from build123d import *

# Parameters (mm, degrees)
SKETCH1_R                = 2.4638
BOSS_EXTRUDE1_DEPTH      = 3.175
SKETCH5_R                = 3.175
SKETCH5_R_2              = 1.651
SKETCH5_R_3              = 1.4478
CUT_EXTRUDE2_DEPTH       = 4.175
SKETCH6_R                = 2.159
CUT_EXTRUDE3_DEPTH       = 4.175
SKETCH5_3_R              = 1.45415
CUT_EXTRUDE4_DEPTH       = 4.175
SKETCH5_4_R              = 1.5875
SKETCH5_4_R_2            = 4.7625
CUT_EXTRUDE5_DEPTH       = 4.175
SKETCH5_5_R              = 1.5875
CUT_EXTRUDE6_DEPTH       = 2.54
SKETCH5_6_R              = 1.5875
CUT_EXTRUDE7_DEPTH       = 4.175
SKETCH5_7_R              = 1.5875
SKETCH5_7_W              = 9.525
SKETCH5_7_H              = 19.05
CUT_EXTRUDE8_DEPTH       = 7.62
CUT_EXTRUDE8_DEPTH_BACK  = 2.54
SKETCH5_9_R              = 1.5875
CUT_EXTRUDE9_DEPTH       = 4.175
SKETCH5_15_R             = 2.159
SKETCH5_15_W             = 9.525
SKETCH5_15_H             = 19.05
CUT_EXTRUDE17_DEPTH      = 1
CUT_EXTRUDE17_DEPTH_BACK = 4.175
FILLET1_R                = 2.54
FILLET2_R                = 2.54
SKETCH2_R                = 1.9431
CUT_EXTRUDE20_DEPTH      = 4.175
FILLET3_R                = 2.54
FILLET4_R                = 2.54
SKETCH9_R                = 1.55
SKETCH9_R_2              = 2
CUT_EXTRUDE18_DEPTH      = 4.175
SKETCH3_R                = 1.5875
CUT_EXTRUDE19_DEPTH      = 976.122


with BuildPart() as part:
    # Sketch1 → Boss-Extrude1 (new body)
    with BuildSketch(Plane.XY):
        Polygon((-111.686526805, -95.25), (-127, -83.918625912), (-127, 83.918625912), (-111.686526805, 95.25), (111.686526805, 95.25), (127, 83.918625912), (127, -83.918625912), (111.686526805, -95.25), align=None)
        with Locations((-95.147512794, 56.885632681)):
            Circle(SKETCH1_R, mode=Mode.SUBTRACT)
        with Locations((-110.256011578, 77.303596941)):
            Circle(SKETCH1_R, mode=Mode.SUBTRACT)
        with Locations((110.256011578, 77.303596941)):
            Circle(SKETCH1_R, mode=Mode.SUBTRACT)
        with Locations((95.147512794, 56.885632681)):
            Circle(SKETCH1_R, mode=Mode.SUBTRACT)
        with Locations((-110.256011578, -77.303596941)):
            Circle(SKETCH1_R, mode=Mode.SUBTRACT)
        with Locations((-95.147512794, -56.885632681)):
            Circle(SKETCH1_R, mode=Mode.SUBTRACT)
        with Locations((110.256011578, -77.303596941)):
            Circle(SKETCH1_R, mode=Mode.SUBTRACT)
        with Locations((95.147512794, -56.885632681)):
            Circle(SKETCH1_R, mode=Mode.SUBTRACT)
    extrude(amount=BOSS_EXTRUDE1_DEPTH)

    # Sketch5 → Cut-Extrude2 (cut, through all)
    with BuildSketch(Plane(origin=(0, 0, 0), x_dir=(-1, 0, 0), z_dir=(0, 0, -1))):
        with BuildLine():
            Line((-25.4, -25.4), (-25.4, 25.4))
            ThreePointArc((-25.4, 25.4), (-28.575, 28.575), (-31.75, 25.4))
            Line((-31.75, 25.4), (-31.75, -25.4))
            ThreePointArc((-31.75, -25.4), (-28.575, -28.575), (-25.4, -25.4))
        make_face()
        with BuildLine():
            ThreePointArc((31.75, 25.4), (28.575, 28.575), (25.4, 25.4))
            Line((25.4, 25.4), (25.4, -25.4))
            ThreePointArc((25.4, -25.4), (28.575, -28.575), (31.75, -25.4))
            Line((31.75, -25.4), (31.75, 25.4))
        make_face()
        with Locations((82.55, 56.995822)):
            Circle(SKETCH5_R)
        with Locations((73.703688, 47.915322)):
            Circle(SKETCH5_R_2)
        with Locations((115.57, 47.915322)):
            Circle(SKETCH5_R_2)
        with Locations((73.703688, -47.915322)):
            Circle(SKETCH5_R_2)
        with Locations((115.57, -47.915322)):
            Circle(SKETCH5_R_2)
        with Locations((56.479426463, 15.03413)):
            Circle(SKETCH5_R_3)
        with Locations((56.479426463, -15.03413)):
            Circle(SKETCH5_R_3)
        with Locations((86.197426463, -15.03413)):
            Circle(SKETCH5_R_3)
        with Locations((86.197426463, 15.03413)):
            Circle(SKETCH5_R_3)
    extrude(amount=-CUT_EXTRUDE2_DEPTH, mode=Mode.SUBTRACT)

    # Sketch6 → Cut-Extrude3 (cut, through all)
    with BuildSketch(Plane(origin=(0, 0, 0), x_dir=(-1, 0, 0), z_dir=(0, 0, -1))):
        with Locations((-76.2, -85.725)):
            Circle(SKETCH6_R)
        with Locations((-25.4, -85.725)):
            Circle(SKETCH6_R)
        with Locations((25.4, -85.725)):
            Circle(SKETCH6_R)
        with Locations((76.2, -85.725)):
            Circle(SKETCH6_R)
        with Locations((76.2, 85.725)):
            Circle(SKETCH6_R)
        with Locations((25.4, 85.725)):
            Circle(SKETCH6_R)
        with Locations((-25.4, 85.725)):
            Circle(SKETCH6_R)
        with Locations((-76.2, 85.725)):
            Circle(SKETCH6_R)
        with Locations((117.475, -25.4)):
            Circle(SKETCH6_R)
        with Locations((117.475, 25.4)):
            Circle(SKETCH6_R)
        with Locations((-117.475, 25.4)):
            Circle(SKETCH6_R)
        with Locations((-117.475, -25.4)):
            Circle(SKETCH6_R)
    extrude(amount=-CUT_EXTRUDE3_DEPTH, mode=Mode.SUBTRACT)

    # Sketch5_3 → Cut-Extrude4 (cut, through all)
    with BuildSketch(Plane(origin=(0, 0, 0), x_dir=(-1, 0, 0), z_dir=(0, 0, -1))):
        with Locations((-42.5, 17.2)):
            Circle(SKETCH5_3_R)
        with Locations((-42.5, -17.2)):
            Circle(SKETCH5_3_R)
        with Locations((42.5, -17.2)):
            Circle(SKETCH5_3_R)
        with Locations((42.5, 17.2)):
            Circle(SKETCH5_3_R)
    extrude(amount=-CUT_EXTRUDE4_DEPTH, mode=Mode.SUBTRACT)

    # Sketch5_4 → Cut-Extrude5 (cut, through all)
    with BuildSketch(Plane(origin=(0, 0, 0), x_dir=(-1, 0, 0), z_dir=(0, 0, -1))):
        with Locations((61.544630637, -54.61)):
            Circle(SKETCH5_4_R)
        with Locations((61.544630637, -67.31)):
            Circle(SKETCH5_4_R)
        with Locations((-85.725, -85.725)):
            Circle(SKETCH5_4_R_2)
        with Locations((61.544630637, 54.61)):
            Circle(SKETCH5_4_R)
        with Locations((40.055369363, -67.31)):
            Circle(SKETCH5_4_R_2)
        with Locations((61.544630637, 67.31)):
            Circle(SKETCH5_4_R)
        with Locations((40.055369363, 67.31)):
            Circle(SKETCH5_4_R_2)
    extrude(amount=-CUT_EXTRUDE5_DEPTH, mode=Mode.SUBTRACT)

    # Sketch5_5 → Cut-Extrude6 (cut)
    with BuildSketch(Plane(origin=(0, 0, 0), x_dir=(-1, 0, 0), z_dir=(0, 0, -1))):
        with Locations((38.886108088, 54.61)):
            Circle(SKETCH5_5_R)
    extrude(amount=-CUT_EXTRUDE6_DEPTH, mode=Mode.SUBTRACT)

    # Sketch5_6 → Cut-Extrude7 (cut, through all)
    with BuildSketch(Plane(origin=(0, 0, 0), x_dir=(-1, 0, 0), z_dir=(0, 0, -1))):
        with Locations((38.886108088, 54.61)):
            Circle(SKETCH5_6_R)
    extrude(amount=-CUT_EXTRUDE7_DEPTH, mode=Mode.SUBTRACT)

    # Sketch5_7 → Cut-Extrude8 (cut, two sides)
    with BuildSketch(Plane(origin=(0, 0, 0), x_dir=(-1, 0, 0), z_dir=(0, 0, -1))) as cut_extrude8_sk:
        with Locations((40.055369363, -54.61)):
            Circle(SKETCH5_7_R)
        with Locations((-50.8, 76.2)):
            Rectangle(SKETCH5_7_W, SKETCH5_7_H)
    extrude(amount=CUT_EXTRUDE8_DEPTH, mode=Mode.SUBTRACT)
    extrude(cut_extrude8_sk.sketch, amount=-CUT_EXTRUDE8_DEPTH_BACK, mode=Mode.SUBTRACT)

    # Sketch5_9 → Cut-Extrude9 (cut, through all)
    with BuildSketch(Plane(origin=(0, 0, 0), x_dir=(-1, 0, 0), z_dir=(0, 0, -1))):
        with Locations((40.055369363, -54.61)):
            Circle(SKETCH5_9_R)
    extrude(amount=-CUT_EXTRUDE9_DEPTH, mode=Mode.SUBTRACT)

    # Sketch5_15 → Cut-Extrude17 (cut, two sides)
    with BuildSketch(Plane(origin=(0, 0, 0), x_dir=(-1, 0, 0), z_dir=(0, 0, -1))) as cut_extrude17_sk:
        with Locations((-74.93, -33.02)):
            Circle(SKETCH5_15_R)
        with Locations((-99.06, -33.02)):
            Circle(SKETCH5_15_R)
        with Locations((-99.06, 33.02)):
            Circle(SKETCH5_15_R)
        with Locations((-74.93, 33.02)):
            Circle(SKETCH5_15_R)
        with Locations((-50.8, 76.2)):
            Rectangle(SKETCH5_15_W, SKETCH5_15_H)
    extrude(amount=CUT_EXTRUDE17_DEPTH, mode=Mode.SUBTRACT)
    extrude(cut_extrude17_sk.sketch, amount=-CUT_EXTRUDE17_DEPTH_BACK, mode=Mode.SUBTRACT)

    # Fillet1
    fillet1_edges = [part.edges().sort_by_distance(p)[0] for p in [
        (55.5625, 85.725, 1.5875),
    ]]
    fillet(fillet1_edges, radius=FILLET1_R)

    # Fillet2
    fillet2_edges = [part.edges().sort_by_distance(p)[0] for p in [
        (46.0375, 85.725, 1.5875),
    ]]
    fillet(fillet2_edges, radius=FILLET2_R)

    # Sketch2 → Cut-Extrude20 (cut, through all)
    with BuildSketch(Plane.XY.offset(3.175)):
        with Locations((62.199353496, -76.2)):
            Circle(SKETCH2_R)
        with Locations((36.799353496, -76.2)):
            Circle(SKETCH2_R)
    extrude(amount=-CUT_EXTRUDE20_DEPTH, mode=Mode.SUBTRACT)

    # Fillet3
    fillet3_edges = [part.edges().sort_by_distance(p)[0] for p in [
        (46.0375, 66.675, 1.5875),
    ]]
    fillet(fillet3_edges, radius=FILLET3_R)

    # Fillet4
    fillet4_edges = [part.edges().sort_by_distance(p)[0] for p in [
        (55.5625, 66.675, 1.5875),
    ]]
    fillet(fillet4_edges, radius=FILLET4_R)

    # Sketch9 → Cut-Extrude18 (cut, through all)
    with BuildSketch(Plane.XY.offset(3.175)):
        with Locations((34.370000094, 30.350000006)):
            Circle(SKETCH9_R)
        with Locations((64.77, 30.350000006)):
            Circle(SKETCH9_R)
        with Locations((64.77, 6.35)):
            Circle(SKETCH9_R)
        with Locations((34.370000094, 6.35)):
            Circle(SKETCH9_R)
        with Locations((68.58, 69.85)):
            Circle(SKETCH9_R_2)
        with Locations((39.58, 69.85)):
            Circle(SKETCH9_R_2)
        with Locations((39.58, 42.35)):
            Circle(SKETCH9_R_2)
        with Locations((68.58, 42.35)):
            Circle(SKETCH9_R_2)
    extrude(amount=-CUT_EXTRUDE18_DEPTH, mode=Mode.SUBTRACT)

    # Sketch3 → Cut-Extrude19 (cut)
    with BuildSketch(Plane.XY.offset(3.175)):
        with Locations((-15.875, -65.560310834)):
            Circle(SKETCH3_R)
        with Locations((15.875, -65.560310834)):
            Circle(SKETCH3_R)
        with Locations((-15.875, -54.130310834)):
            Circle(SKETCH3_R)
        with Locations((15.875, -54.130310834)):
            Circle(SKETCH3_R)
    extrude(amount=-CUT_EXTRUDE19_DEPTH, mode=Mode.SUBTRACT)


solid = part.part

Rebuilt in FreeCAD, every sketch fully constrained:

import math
import FreeCAD as App
import Part
import Sketcher

V = App.Vector
Q = App.Units.Quantity


def edges_at(feature, points):
    """Names of the edges that pass closest to the given points."""
    edges = feature.Shape.Edges
    near = lambda p: min(range(len(edges)), key=lambda i: edges[i].distToShape(Part.Vertex(*p))[0])
    return sorted({f"Edge{near(p) + 1}" for p in points})

doc = App.newDocument("Part")
params = doc.addObject("Spreadsheet::Sheet", "Params")
for row, (alias, value) in enumerate([
    ("sketch1_diameter", "0.194 in"),
    ("sketch1_length", "0.75 in"),
    ("pad1_length", "0.125 in"),
    ("sketch2_diameter", "0.25 in"),
    ("sketch2_diameter2", "0.13 in"),
    ("sketch2_height", "2 in"),
    ("sketch2_diameter3", "0.114 in"),
    ("sketch3_diameter", "0.17 in"),
    ("sketch5_diameter", "0.125 in"),
    ("sketch5_diameter2", "0.375 in"),
    ("sketch6_diameter", "0.125 in"),
    ("pocket5_length", "0.1 in"),
    ("sketch7_diameter", "0.125 in"),
    ("sketch8_diameter", "0.125 in"),
    ("sketch8_height", "0.75 in"),
    ("sketch8_width", "0.375 in"),
    ("pocket7_length", "0.3 in"),
    ("pocket7_length2", "0.1 in"),
    ("sketch9_diameter", "0.125 in"),
    ("sketch10_diameter", "0.17 in"),
    ("sketch10_height", "0.75 in"),
    ("sketch10_width", "0.375 in"),
    ("fillet_radius", "0.1 in"),
    ("fillet2_radius", "0.1 in"),
    ("sketch11_diameter", "0.153 in"),
    ("fillet3_radius", "0.1 in"),
    ("fillet4_radius", "0.1 in"),
    ("sketch13_diameter", "0.125 in"),
    ("pocket12_length", "38.43 in"),
], start=1):
    params.set(f"A{row}", alias)
    params.set(f"B{row}", "=" + value)
    params.setAlias(f"B{row}", alias)

body = doc.addObject("PartDesign::Body", "Body")

sketch1 = body.newObject("Sketcher::SketchObject", "Sketch")
sketch1.AttachmentSupport = (doc.getObject("XY_Plane"), [""])
sketch1.MapMode = "FlatFace"
sketch1.addGeometry(Part.LineSegment(V(-127, -83.9, 0), V(-111.7, -95.2, 0)), False)
sketch1.addGeometry(Part.LineSegment(V(-111.7, -95.2, 0), V(111.7, -95.2, 0)), False)
sketch1.addGeometry(Part.LineSegment(V(111.7, -95.2, 0), V(127, -83.9, 0)), False)
sketch1.addGeometry(Part.LineSegment(V(127, -83.9, 0), V(127, 83.9, 0)), False)
sketch1.addGeometry(Part.LineSegment(V(127, 83.9, 0), V(111.7, 95.2, 0)), False)
sketch1.addGeometry(Part.LineSegment(V(111.7, 95.2, 0), V(-111.7, 95.2, 0)), False)
sketch1.addGeometry(Part.LineSegment(V(-111.7, 95.2, 0), V(-127, 83.9, 0)), False)
sketch1.addGeometry(Part.LineSegment(V(-127, 83.9, 0), V(-127, -83.9, 0)), False)
sketch1.addGeometry(Part.Circle(V(110.3, -77.3, 0), V(0, 0, 1), 2.5), False)
sketch1.addGeometry(Part.Circle(V(95.1, -56.9, 0), V(0, 0, 1), 2.5), False)
sketch1.addGeometry(Part.Circle(V(-110.3, -77.3, 0), V(0, 0, 1), 2.5), False)
sketch1.addGeometry(Part.Circle(V(-95.1, -56.9, 0), V(0, 0, 1), 2.5), False)
sketch1.addGeometry(Part.Circle(V(95.1, 56.9, 0), V(0, 0, 1), 2.5), False)
sketch1.addGeometry(Part.Circle(V(110.3, 77.3, 0), V(0, 0, 1), 2.5), False)
sketch1.addGeometry(Part.Circle(V(-95.1, 56.9, 0), V(0, 0, 1), 2.5), False)
sketch1.addGeometry(Part.Circle(V(-110.3, 77.3, 0), V(0, 0, 1), 2.5), False)
sketch1.addConstraint(Sketcher.Constraint("Coincident", 0, 2, 1, 1))
sketch1.addConstraint(Sketcher.Constraint("Coincident", 1, 2, 2, 1))
sketch1.addConstraint(Sketcher.Constraint("Coincident", 2, 2, 3, 1))
sketch1.addConstraint(Sketcher.Constraint("Coincident", 3, 2, 4, 1))
sketch1.addConstraint(Sketcher.Constraint("Coincident", 4, 2, 5, 1))
sketch1.addConstraint(Sketcher.Constraint("Coincident", 5, 2, 6, 1))
sketch1.addConstraint(Sketcher.Constraint("Coincident", 6, 2, 7, 1))
sketch1.addConstraint(Sketcher.Constraint("Coincident", 7, 2, 0, 1))
sketch1.addConstraint(Sketcher.Constraint("Horizontal", 1))
sketch1.addConstraint(Sketcher.Constraint("Vertical", 3))
sketch1.addConstraint(Sketcher.Constraint("Horizontal", 5))
sketch1.addConstraint(Sketcher.Constraint("Vertical", 7))
sketch1.addConstraint(Sketcher.Constraint("Equal", 8, 9))
sketch1.addConstraint(Sketcher.Constraint("Equal", 9, 10))
sketch1.addConstraint(Sketcher.Constraint("Equal", 10, 11))
sketch1.addConstraint(Sketcher.Constraint("Equal", 11, 12))
sketch1.addConstraint(Sketcher.Constraint("Equal", 12, 13))
sketch1.addConstraint(Sketcher.Constraint("Equal", 13, 14))
sketch1.addConstraint(Sketcher.Constraint("Equal", 14, 15))
sketch1.addConstraint(Sketcher.Constraint("Symmetric", 11, 3, 12, 3, -1, 1))
sketch1.addConstraint(Sketcher.Constraint("Symmetric", 10, 3, 13, 3, -1, 1))
sketch1.addConstraint(Sketcher.Constraint("Symmetric", 9, 3, 14, 3, -1, 1))
sketch1.addConstraint(Sketcher.Constraint("Symmetric", 8, 3, 15, 3, -1, 1))
sketch1.addConstraint(Sketcher.Constraint("Symmetric", 0, 2, 4, 2, -1, 1))
sketch1.addConstraint(Sketcher.Constraint("Symmetric", 2, 2, 6, 2, -1, 1))
sketch1.addConstraint(Sketcher.Constraint("Symmetric", 8, 3, 10, 3, -2))
sketch1.addConstraint(Sketcher.Constraint("Symmetric", 9, 3, 11, 3, -2))
sketch1.addConstraint(Sketcher.Constraint("Parallel", 0, 4))
sketch1.addConstraint(Sketcher.Constraint("Parallel", 2, 6))
sketch1.addConstraint(Sketcher.Constraint("Horizontal", 3, 2, 6, 2))
sketch1.addConstraint(Sketcher.Constraint("Vertical", 1, 2, 4, 2))
sketch1.addConstraint(Sketcher.Constraint("Diameter", 8, Q("0.194 in")))
sketch1.addConstraint(Sketcher.Constraint("DistanceX", -1, 1, 2, 2, Q("5 in")))
sketch1.addConstraint(Sketcher.Constraint("Angle", 0, Q("-36.5 deg")))
sketch1.addConstraint(Sketcher.Constraint("DistanceY", 0, 2, 5, 2, Q("7.5 in")))
sketch1.addConstraint(Sketcher.Constraint("Distance", 0, Q("0.75 in")))
sketch1.addConstraint(Sketcher.Constraint("DistanceX", 9, 3, 8, 3, 15.108499))
sketch1.addConstraint(Sketcher.Constraint("DistanceX", -1, 1, 8, 3, 110.256012))
sketch1.addConstraint(Sketcher.Constraint("DistanceY", 8, 3, 12, 3, 134.18923))
sketch1.addConstraint(Sketcher.Constraint("DistanceY", 2, 2, 8, 3, 6.615029))
sketch1.setExpression("Constraints[31]", "Params.sketch1_diameter")
sketch1.setExpression("Constraints[35]", "Params.sketch1_length")
pad1 = body.newObject("PartDesign::Pad", "Pad")
pad1.Profile = sketch1
pad1.setExpression("Length", "Params.pad1_length")

sketch2 = body.newObject("Sketcher::SketchObject", "Sketch001")
sketch2.AttachmentSupport = (doc.getObject("XY_Plane"), [""])
sketch2.MapMode = "FlatFace"
sketch2.addGeometry(Part.LineSegment(V(25.4, -25.4, 0), V(25.4, 25.4, 0)), False)
sketch2.addGeometry(Part.ArcOfCircle(Part.Circle(V(28.6, 25.4, 0), V(0, 0, 1), 3.2), math.radians(0), math.radians(180)), False)
sketch2.addGeometry(Part.LineSegment(V(31.8, 25.4, 0), V(31.8, -25.4, 0)), False)
sketch2.addGeometry(Part.ArcOfCircle(Part.Circle(V(28.6, -25.4, 0), V(0, 0, 1), 3.2), math.radians(180), math.radians(360)), False)
sketch2.addGeometry(Part.ArcOfCircle(Part.Circle(V(-28.6, 25.4, 0), V(0, 0, 1), 3.2), math.radians(0), math.radians(180)), False)
sketch2.addGeometry(Part.LineSegment(V(-25.4, 25.4, 0), V(-25.4, -25.4, 0)), False)
sketch2.addGeometry(Part.ArcOfCircle(Part.Circle(V(-28.6, -25.4, 0), V(0, 0, 1), 3.2), math.radians(180), math.radians(360)), False)
sketch2.addGeometry(Part.LineSegment(V(-31.8, -25.4, 0), V(-31.8, 25.4, 0)), False)
sketch2.addGeometry(Part.Circle(V(-82.5, 57, 0), V(0, 0, 1), 3.2), False)
sketch2.addGeometry(Part.Circle(V(-73.7, 47.9, 0), V(0, 0, 1), 1.7), False)
sketch2.addGeometry(Part.Circle(V(-115.6, 47.9, 0), V(0, 0, 1), 1.7), False)
sketch2.addGeometry(Part.Circle(V(-73.7, -47.9, 0), V(0, 0, 1), 1.7), False)
sketch2.addGeometry(Part.Circle(V(-115.6, -47.9, 0), V(0, 0, 1), 1.7), False)
sketch2.addGeometry(Part.Circle(V(-56.5, 15, 0), V(0, 0, 1), 1.4), False)
sketch2.addGeometry(Part.Circle(V(-56.5, -15, 0), V(0, 0, 1), 1.4), False)
sketch2.addGeometry(Part.Circle(V(-86.2, -15, 0), V(0, 0, 1), 1.4), False)
sketch2.addGeometry(Part.Circle(V(-86.2, 15, 0), V(0, 0, 1), 1.4), False)
sketch2.addConstraint(Sketcher.Constraint("Tangent", 0, 2, 1, 2))
sketch2.addConstraint(Sketcher.Constraint("Tangent", 1, 1, 2, 1))
sketch2.addConstraint(Sketcher.Constraint("Tangent", 2, 2, 3, 2))
sketch2.addConstraint(Sketcher.Constraint("Tangent", 3, 1, 0, 1))
sketch2.addConstraint(Sketcher.Constraint("Tangent", 4, 1, 5, 1))
sketch2.addConstraint(Sketcher.Constraint("Tangent", 5, 2, 6, 2))
sketch2.addConstraint(Sketcher.Constraint("Tangent", 6, 1, 7, 1))
sketch2.addConstraint(Sketcher.Constraint("Tangent", 7, 2, 4, 2))
sketch2.addConstraint(Sketcher.Constraint("Vertical", 0))
sketch2.addConstraint(Sketcher.Constraint("Vertical", 2))
sketch2.addConstraint(Sketcher.Constraint("Vertical", 5))
sketch2.addConstraint(Sketcher.Constraint("Vertical", 7))
sketch2.addConstraint(Sketcher.Constraint("Equal", 3, 4))
sketch2.addConstraint(Sketcher.Constraint("Equal", 6, 8))
sketch2.addConstraint(Sketcher.Constraint("Equal", 9, 10))
sketch2.addConstraint(Sketcher.Constraint("Equal", 10, 11))
sketch2.addConstraint(Sketcher.Constraint("Equal", 11, 12))
sketch2.addConstraint(Sketcher.Constraint("Equal", 13, 14))
sketch2.addConstraint(Sketcher.Constraint("Equal", 14, 15))
sketch2.addConstraint(Sketcher.Constraint("Equal", 15, 16))
sketch2.addConstraint(Sketcher.Constraint("Symmetric", 3, 3, 4, 3, -1, 1))
sketch2.addConstraint(Sketcher.Constraint("Symmetric", 9, 3, 11, 3, -1))
sketch2.addConstraint(Sketcher.Constraint("Symmetric", 10, 3, 12, 3, -1))
sketch2.addConstraint(Sketcher.Constraint("Symmetric", 13, 3, 14, 3, -1))
sketch2.addConstraint(Sketcher.Constraint("Symmetric", 15, 3, 16, 3, -1))
sketch2.addConstraint(Sketcher.Constraint("Horizontal", 1, 3, 4, 3))
sketch2.addConstraint(Sketcher.Constraint("Horizontal", 3, 3, 6, 3))
sketch2.addConstraint(Sketcher.Constraint("Horizontal", 9, 3, 10, 3))
sketch2.addConstraint(Sketcher.Constraint("Horizontal", 14, 3, 15, 3))
sketch2.addConstraint(Sketcher.Constraint("Diameter", 8, Q("0.25 in")))
sketch2.addConstraint(Sketcher.Constraint("Diameter", 9, Q("0.13 in")))
sketch2.addConstraint(Sketcher.Constraint("DistanceY", 0, 1, 0, 2, Q("2 in")))
sketch2.addConstraint(Sketcher.Constraint("Diameter", 13, Q("0.114 in")))
sketch2.addConstraint(Sketcher.Constraint("DistanceX", -1, 1, 0, 2, Q("1 in")))
sketch2.addConstraint(Sketcher.Constraint("DistanceX", 10, 3, 8, 3, Q("1.3 in")))
sketch2.addConstraint(Sketcher.Constraint("DistanceX", 8, 3, -1, 1, Q("3.25 in")))
sketch2.addConstraint(Sketcher.Constraint("DistanceX", 15, 3, 14, 3, Q("1.17 in")))
sketch2.addConstraint(Sketcher.Constraint("DistanceY", 9, 3, 8, 3, Q("0.3575 in")))
sketch2.addConstraint(Sketcher.Constraint("DistanceY", -1, 1, 8, 3, 56.995822))
sketch2.addConstraint(Sketcher.Constraint("DistanceX", 9, 3, -1, 1, 73.703688))
sketch2.addConstraint(Sketcher.Constraint("DistanceY", -1, 1, 13, 3, 15.03413))
sketch2.addConstraint(Sketcher.Constraint("DistanceX", 9, 3, 13, 3, 17.224262))
sketch2.setExpression("Constraints[29]", "Params.sketch2_diameter")
sketch2.setExpression("Constraints[30]", "Params.sketch2_diameter2")
sketch2.setExpression("Constraints[31]", "Params.sketch2_height")
sketch2.setExpression("Constraints[32]", "Params.sketch2_diameter3")
pocket1 = body.newObject("PartDesign::Pocket", "Pocket")
pocket1.Profile = sketch2
pocket1.Type = "ThroughAll"
pocket1.Reversed = True

sketch3 = body.newObject("Sketcher::SketchObject", "Sketch002")
sketch3.AttachmentSupport = (doc.getObject("XY_Plane"), [""])
sketch3.MapMode = "FlatFace"
sketch3.addGeometry(Part.Circle(V(76.2, -85.7, 0), V(0, 0, 1), 2.2), False)
sketch3.addGeometry(Part.Circle(V(25.4, -85.7, 0), V(0, 0, 1), 2.2), False)
sketch3.addGeometry(Part.Circle(V(-25.4, -85.7, 0), V(0, 0, 1), 2.2), False)
sketch3.addGeometry(Part.Circle(V(-76.2, -85.7, 0), V(0, 0, 1), 2.2), False)
sketch3.addGeometry(Part.Circle(V(-76.2, 85.7, 0), V(0, 0, 1), 2.2), False)
sketch3.addGeometry(Part.Circle(V(-25.4, 85.7, 0), V(0, 0, 1), 2.2), False)
sketch3.addGeometry(Part.Circle(V(25.4, 85.7, 0), V(0, 0, 1), 2.2), False)
sketch3.addGeometry(Part.Circle(V(76.2, 85.7, 0), V(0, 0, 1), 2.2), False)
sketch3.addGeometry(Part.Circle(V(-117.5, -25.4, 0), V(0, 0, 1), 2.2), False)
sketch3.addGeometry(Part.Circle(V(-117.5, 25.4, 0), V(0, 0, 1), 2.2), False)
sketch3.addGeometry(Part.Circle(V(117.5, 25.4, 0), V(0, 0, 1), 2.2), False)
sketch3.addGeometry(Part.Circle(V(117.5, -25.4, 0), V(0, 0, 1), 2.2), False)
sketch3.addConstraint(Sketcher.Constraint("Equal", 0, 1))
sketch3.addConstraint(Sketcher.Constraint("Equal", 1, 2))
sketch3.addConstraint(Sketcher.Constraint("Equal", 2, 3))
sketch3.addConstraint(Sketcher.Constraint("Equal", 3, 4))
sketch3.addConstraint(Sketcher.Constraint("Equal", 4, 5))
sketch3.addConstraint(Sketcher.Constraint("Equal", 5, 6))
sketch3.addConstraint(Sketcher.Constraint("Equal", 6, 7))
sketch3.addConstraint(Sketcher.Constraint("Equal", 7, 8))
sketch3.addConstraint(Sketcher.Constraint("Equal", 8, 9))
sketch3.addConstraint(Sketcher.Constraint("Equal", 9, 10))
sketch3.addConstraint(Sketcher.Constraint("Equal", 10, 11))
sketch3.addConstraint(Sketcher.Constraint("Symmetric", 0, 3, 4, 3, -1, 1))
sketch3.addConstraint(Sketcher.Constraint("Symmetric", 1, 3, 5, 3, -1, 1))
sketch3.addConstraint(Sketcher.Constraint("Symmetric", 2, 3, 6, 3, -1, 1))
sketch3.addConstraint(Sketcher.Constraint("Symmetric", 3, 3, 7, 3, -1, 1))
sketch3.addConstraint(Sketcher.Constraint("Symmetric", 8, 3, 10, 3, -1, 1))
sketch3.addConstraint(Sketcher.Constraint("Symmetric", 9, 3, 11, 3, -1, 1))
sketch3.addConstraint(Sketcher.Constraint("Symmetric", 1, 3, 2, 3, -2))
sketch3.addConstraint(Sketcher.Constraint("Symmetric", 0, 3, 3, 3, -2))
sketch3.addConstraint(Sketcher.Constraint("Symmetric", 9, 3, 10, 3, -2))
sketch3.addConstraint(Sketcher.Constraint("Horizontal", 0, 3, 1, 3))
sketch3.addConstraint(Sketcher.Constraint("Diameter", 0, Q("0.17 in")))
sketch3.addConstraint(Sketcher.Constraint("DistanceX", -1, 1, 0, 3, Q("3 in")))
sketch3.addConstraint(Sketcher.Constraint("DistanceX", -1, 1, 1, 3, Q("1 in")))
sketch3.addConstraint(Sketcher.Constraint("DistanceY", 8, 3, -1, 1, Q("1 in")))
sketch3.addConstraint(Sketcher.Constraint("DistanceY", 3, 3, 4, 3, Q("6.75 in")))
sketch3.addConstraint(Sketcher.Constraint("DistanceX", 8, 3, -1, 1, Q("4.625 in")))
sketch3.setExpression("Constraints[21]", "Params.sketch3_diameter")
pocket2 = body.newObject("PartDesign::Pocket", "Pocket001")
pocket2.Profile = sketch3
pocket2.Type = "ThroughAll"
pocket2.Reversed = True

sketch4 = body.newObject("Sketcher::SketchObject", "Sketch003")
sketch4.AttachmentSupport = (doc.getObject("XY_Plane"), [""])
sketch4.MapMode = "FlatFace"
sketch4.addGeometry(Part.Circle(V(42.5, 17.2, 0), V(0, 0, 1), 1.5), False)
sketch4.addGeometry(Part.Circle(V(42.5, -17.2, 0), V(0, 0, 1), 1.5), False)
sketch4.addGeometry(Part.Circle(V(-42.5, -17.2, 0), V(0, 0, 1), 1.5), False)
sketch4.addGeometry(Part.Circle(V(-42.5, 17.2, 0), V(0, 0, 1), 1.5), False)
sketch4.addConstraint(Sketcher.Constraint("Equal", 0, 1))
sketch4.addConstraint(Sketcher.Constraint("Equal", 1, 2))
sketch4.addConstraint(Sketcher.Constraint("Equal", 2, 3))
sketch4.addConstraint(Sketcher.Constraint("Symmetric", 0, 3, 2, 3, -1, 1))
sketch4.addConstraint(Sketcher.Constraint("Symmetric", 1, 3, 3, 3, -1, 1))
sketch4.addConstraint(Sketcher.Constraint("Symmetric", 1, 3, 2, 3, -2))
sketch4.addConstraint(Sketcher.Constraint("Diameter", 0, Q("0.1145 in")))
sketch4.addConstraint(Sketcher.Constraint("DistanceX", -1, 1, 0, 3, 42.5))
sketch4.addConstraint(Sketcher.Constraint("DistanceY", -1, 1, 0, 3, 17.2))
pocket3 = body.newObject("PartDesign::Pocket", "Pocket002")
pocket3.Profile = sketch4
pocket3.Type = "ThroughAll"
pocket3.Reversed = True

sketch5 = body.newObject("Sketcher::SketchObject", "Sketch004")
sketch5.AttachmentSupport = (doc.getObject("XY_Plane"), [""])
sketch5.MapMode = "FlatFace"
sketch5.addGeometry(Part.Circle(V(-61.5, -54.6, 0), V(0, 0, 1), 1.6), False)
sketch5.addGeometry(Part.Circle(V(-61.5, -67.3, 0), V(0, 0, 1), 1.6), False)
sketch5.addGeometry(Part.Circle(V(85.7, -85.7, 0), V(0, 0, 1), 4.8), False)
sketch5.addGeometry(Part.Circle(V(-61.5, 54.6, 0), V(0, 0, 1), 1.6), False)
sketch5.addGeometry(Part.Circle(V(-40.1, -67.3, 0), V(0, 0, 1), 4.8), False)
sketch5.addGeometry(Part.Circle(V(-61.5, 67.3, 0), V(0, 0, 1), 1.6), False)
sketch5.addGeometry(Part.Circle(V(-40.1, 67.3, 0), V(0, 0, 1), 4.8), False)
sketch5.addConstraint(Sketcher.Constraint("Equal", 0, 1))
sketch5.addConstraint(Sketcher.Constraint("Equal", 1, 3))
sketch5.addConstraint(Sketcher.Constraint("Equal", 2, 4))
sketch5.addConstraint(Sketcher.Constraint("Equal", 3, 5))
sketch5.addConstraint(Sketcher.Constraint("Equal", 4, 6))
sketch5.addConstraint(Sketcher.Constraint("Symmetric", 0, 3, 3, 3, -1))
sketch5.addConstraint(Sketcher.Constraint("Symmetric", 1, 3, 5, 3, -1))
sketch5.addConstraint(Sketcher.Constraint("Symmetric", 4, 3, 6, 3, -1))
sketch5.addConstraint(Sketcher.Constraint("Horizontal", 1, 3, 4, 3))
sketch5.addConstraint(Sketcher.Constraint("Vertical", 0, 3, 1, 3))
sketch5.addConstraint(Sketcher.Constraint("Diameter", 0, Q("0.125 in")))
sketch5.addConstraint(Sketcher.Constraint("Diameter", 2, Q("0.375 in")))
sketch5.addConstraint(Sketcher.Constraint("DistanceY", 1, 3, 0, 3, Q("0.5 in")))
sketch5.addConstraint(Sketcher.Constraint("DistanceY", 0, 3, 3, 3, Q("4.3 in")))
sketch5.addConstraint(Sketcher.Constraint("DistanceX", -1, 1, 2, 3, Q("3.375 in")))
sketch5.addConstraint(Sketcher.Constraint("DistanceY", 2, 3, -1, 1, Q("3.375 in")))
sketch5.addConstraint(Sketcher.Constraint("DistanceX", 0, 3, -1, 1, 61.544631))
sketch5.addConstraint(Sketcher.Constraint("DistanceX", 4, 3, -1, 1, 40.055369))
sketch5.setExpression("Constraints[10]", "Params.sketch5_diameter")
sketch5.setExpression("Constraints[11]", "Params.sketch5_diameter2")
pocket4 = body.newObject("PartDesign::Pocket", "Pocket003")
pocket4.Profile = sketch5
pocket4.Type = "ThroughAll"
pocket4.Reversed = True

sketch6 = body.newObject("Sketcher::SketchObject", "Sketch005")
sketch6.AttachmentSupport = (doc.getObject("XY_Plane"), [""])
sketch6.MapMode = "FlatFace"
sketch6.addGeometry(Part.Circle(V(-38.9, 54.6, 0), V(0, 0, 1), 1.6), False)
sketch6.addConstraint(Sketcher.Constraint("Diameter", 0, Q("0.125 in")))
sketch6.addConstraint(Sketcher.Constraint("DistanceY", -1, 1, 0, 3, Q("2.15 in")))
sketch6.addConstraint(Sketcher.Constraint("DistanceX", 0, 3, -1, 1, 38.886108))
sketch6.setExpression("Constraints[0]", "Params.sketch6_diameter")
pocket5 = body.newObject("PartDesign::Pocket", "Pocket004")
pocket5.Profile = sketch6
pocket5.setExpression("Length", "Params.pocket5_length")
pocket5.Reversed = True

sketch7 = body.newObject("Sketcher::SketchObject", "Sketch006")
sketch7.AttachmentSupport = (doc.getObject("XY_Plane"), [""])
sketch7.MapMode = "FlatFace"
sketch7.addGeometry(Part.Circle(V(-38.9, 54.6, 0), V(0, 0, 1), 1.6), False)
sketch7.addConstraint(Sketcher.Constraint("Diameter", 0, Q("0.125 in")))
sketch7.addConstraint(Sketcher.Constraint("DistanceY", -1, 1, 0, 3, Q("2.15 in")))
sketch7.addConstraint(Sketcher.Constraint("DistanceX", 0, 3, -1, 1, 38.886108))
sketch7.setExpression("Constraints[0]", "Params.sketch7_diameter")
pocket6 = body.newObject("PartDesign::Pocket", "Pocket005")
pocket6.Profile = sketch7
pocket6.Type = "ThroughAll"
pocket6.Reversed = True

sketch8 = body.newObject("Sketcher::SketchObject", "Sketch007")
sketch8.AttachmentSupport = (doc.getObject("XY_Plane"), [""])
sketch8.MapMode = "FlatFace"
sketch8.addGeometry(Part.Circle(V(-40.1, -54.6, 0), V(0, 0, 1), 1.6), False)
sketch8.addGeometry(Part.LineSegment(V(55.6, 85.7, 0), V(55.6, 66.7, 0)), False)
sketch8.addGeometry(Part.LineSegment(V(55.6, 66.7, 0), V(46, 66.7, 0)), False)
sketch8.addGeometry(Part.LineSegment(V(46, 66.7, 0), V(46, 85.7, 0)), False)
sketch8.addGeometry(Part.LineSegment(V(46, 85.7, 0), V(55.6, 85.7, 0)), False)
sketch8.addConstraint(Sketcher.Constraint("Coincident", 1, 2, 2, 1))
sketch8.addConstraint(Sketcher.Constraint("Coincident", 2, 2, 3, 1))
sketch8.addConstraint(Sketcher.Constraint("Coincident", 3, 2, 4, 1))
sketch8.addConstraint(Sketcher.Constraint("Coincident", 4, 2, 1, 1))
sketch8.addConstraint(Sketcher.Constraint("Vertical", 1))
sketch8.addConstraint(Sketcher.Constraint("Horizontal", 2))
sketch8.addConstraint(Sketcher.Constraint("Vertical", 3))
sketch8.addConstraint(Sketcher.Constraint("Horizontal", 4))
sketch8.addConstraint(Sketcher.Constraint("Diameter", 0, Q("0.125 in")))
sketch8.addConstraint(Sketcher.Constraint("DistanceY", 1, 2, 1, 1, Q("0.75 in")))
sketch8.addConstraint(Sketcher.Constraint("DistanceX", 2, 2, 2, 1, Q("0.375 in")))
sketch8.addConstraint(Sketcher.Constraint("DistanceY", 0, 3, -1, 1, Q("2.15 in")))
sketch8.addConstraint(Sketcher.Constraint("DistanceX", -1, 1, 1, 2, Q("2.1875 in")))
sketch8.addConstraint(Sketcher.Constraint("DistanceY", -1, 1, 1, 2, Q("2.625 in")))
sketch8.addConstraint(Sketcher.Constraint("DistanceX", 0, 3, -1, 1, 40.055369))
sketch8.setExpression("Constraints[8]", "Params.sketch8_diameter")
sketch8.setExpression("Constraints[9]", "Params.sketch8_height")
sketch8.setExpression("Constraints[10]", "Params.sketch8_width")
pocket7 = body.newObject("PartDesign::Pocket", "Pocket006")
pocket7.Profile = sketch8
pocket7.Type = "TwoLengths"
pocket7.setExpression("Length", "Params.pocket7_length")
pocket7.setExpression("Length2", "Params.pocket7_length2")

sketch9 = body.newObject("Sketcher::SketchObject", "Sketch008")
sketch9.AttachmentSupport = (doc.getObject("XY_Plane"), [""])
sketch9.MapMode = "FlatFace"
sketch9.addGeometry(Part.Circle(V(-40.1, -54.6, 0), V(0, 0, 1), 1.6), False)
sketch9.addConstraint(Sketcher.Constraint("Diameter", 0, Q("0.125 in")))
sketch9.addConstraint(Sketcher.Constraint("DistanceY", 0, 3, -1, 1, Q("2.15 in")))
sketch9.addConstraint(Sketcher.Constraint("DistanceX", 0, 3, -1, 1, 40.055369))
sketch9.setExpression("Constraints[0]", "Params.sketch9_diameter")
pocket8 = body.newObject("PartDesign::Pocket", "Pocket007")
pocket8.Profile = sketch9
pocket8.Type = "ThroughAll"
pocket8.Reversed = True

sketch10 = body.newObject("Sketcher::SketchObject", "Sketch009")
sketch10.AttachmentSupport = (doc.getObject("XY_Plane"), [""])
sketch10.MapMode = "FlatFace"
sketch10.addGeometry(Part.Circle(V(74.9, -33, 0), V(0, 0, 1), 2.2), False)
sketch10.addGeometry(Part.Circle(V(99.1, -33, 0), V(0, 0, 1), 2.2), False)
sketch10.addGeometry(Part.Circle(V(99.1, 33, 0), V(0, 0, 1), 2.2), False)
sketch10.addGeometry(Part.Circle(V(74.9, 33, 0), V(0, 0, 1), 2.2), False)
sketch10.addGeometry(Part.LineSegment(V(55.6, 85.7, 0), V(55.6, 66.7, 0)), False)
sketch10.addGeometry(Part.LineSegment(V(55.6, 66.7, 0), V(46, 66.7, 0)), False)
sketch10.addGeometry(Part.LineSegment(V(46, 66.7, 0), V(46, 85.7, 0)), False)
sketch10.addGeometry(Part.LineSegment(V(46, 85.7, 0), V(55.6, 85.7, 0)), False)
sketch10.addConstraint(Sketcher.Constraint("Coincident", 4, 2, 5, 1))
sketch10.addConstraint(Sketcher.Constraint("Coincident", 5, 2, 6, 1))
sketch10.addConstraint(Sketcher.Constraint("Coincident", 6, 2, 7, 1))
sketch10.addConstraint(Sketcher.Constraint("Coincident", 7, 2, 4, 1))
sketch10.addConstraint(Sketcher.Constraint("Vertical", 4))
sketch10.addConstraint(Sketcher.Constraint("Horizontal", 5))
sketch10.addConstraint(Sketcher.Constraint("Vertical", 6))
sketch10.addConstraint(Sketcher.Constraint("Horizontal", 7))
sketch10.addConstraint(Sketcher.Constraint("Equal", 0, 1))
sketch10.addConstraint(Sketcher.Constraint("Equal", 1, 2))
sketch10.addConstraint(Sketcher.Constraint("Equal", 2, 3))
sketch10.addConstraint(Sketcher.Constraint("Symmetric", 1, 3, 2, 3, -1))
sketch10.addConstraint(Sketcher.Constraint("Symmetric", 0, 3, 3, 3, -1))
sketch10.addConstraint(Sketcher.Constraint("Horizontal", 0, 3, 1, 3))
sketch10.addConstraint(Sketcher.Constraint("Diameter", 0, Q("0.17 in")))
sketch10.addConstraint(Sketcher.Constraint("DistanceY", 4, 2, 4, 1, Q("0.75 in")))
sketch10.addConstraint(Sketcher.Constraint("DistanceY", 0, 3, -1, 1, Q("1.3 in")))
sketch10.addConstraint(Sketcher.Constraint("DistanceX", -1, 1, 1, 3, Q("3.9 in")))
sketch10.addConstraint(Sketcher.Constraint("DistanceX", 5, 2, 5, 1, Q("0.375 in")))
sketch10.addConstraint(Sketcher.Constraint("DistanceX", -1, 1, 0, 3, Q("2.95 in")))
sketch10.addConstraint(Sketcher.Constraint("DistanceX", -1, 1, 4, 2, Q("2.1875 in")))
sketch10.addConstraint(Sketcher.Constraint("DistanceY", -1, 1, 4, 2, Q("2.625 in")))
sketch10.setExpression("Constraints[14]", "Params.sketch10_diameter")
sketch10.setExpression("Constraints[15]", "Params.sketch10_height")
sketch10.setExpression("Constraints[18]", "Params.sketch10_width")
pocket9 = body.newObject("PartDesign::Pocket", "Pocket008")
pocket9.Profile = sketch10
pocket9.Type = "ThroughAll"
pocket9.Midplane = True
doc.recompute()

fillet = body.newObject("PartDesign::Fillet", "Fillet")
fillet.Base = (pocket9, edges_at(pocket9, [(55.562, 85.725, 1.587)]))
fillet.setExpression("Radius", "Params.fillet_radius")
doc.recompute()

fillet2 = body.newObject("PartDesign::Fillet", "Fillet001")
fillet2.Base = (fillet, edges_at(fillet, [(46.038, 85.725, 1.587)]))
fillet2.setExpression("Radius", "Params.fillet2_radius")

sketch11 = body.newObject("Sketcher::SketchObject", "Sketch010")
sketch11.AttachmentSupport = (doc.getObject("XY_Plane"), [""])
sketch11.MapMode = "FlatFace"
sketch11.AttachmentOffset = App.Placement(V(0, 0, 0.125 * 25.4), App.Rotation())
sketch11.addGeometry(Part.Circle(V(62.2, -76.2, 0), V(0, 0, 1), 1.9), False)
sketch11.addGeometry(Part.Circle(V(36.8, -76.2, 0), V(0, 0, 1), 1.9), False)
sketch11.addConstraint(Sketcher.Constraint("Equal", 0, 1))
sketch11.addConstraint(Sketcher.Constraint("Horizontal", 0, 3, 1, 3))
sketch11.addConstraint(Sketcher.Constraint("Diameter", 0, Q("0.153 in")))
sketch11.addConstraint(Sketcher.Constraint("DistanceY", 0, 3, -1, 1, Q("3 in")))
sketch11.addConstraint(Sketcher.Constraint("DistanceX", 1, 3, 0, 3, Q("1 in")))
sketch11.addConstraint(Sketcher.Constraint("DistanceX", -1, 1, 0, 3, 62.199353))
sketch11.setExpression("Constraints[2]", "Params.sketch11_diameter")
pocket10 = body.newObject("PartDesign::Pocket", "Pocket009")
pocket10.Profile = sketch11
pocket10.Type = "ThroughAll"
doc.recompute()

fillet3 = body.newObject("PartDesign::Fillet", "Fillet002")
fillet3.Base = (pocket10, edges_at(pocket10, [(46.038, 66.675, 1.587)]))
fillet3.setExpression("Radius", "Params.fillet3_radius")
doc.recompute()

fillet4 = body.newObject("PartDesign::Fillet", "Fillet003")
fillet4.Base = (fillet3, edges_at(fillet3, [(55.562, 66.675, 1.587)]))
fillet4.setExpression("Radius", "Params.fillet4_radius")

sketch12 = body.newObject("Sketcher::SketchObject", "Sketch011")
sketch12.AttachmentSupport = (doc.getObject("XY_Plane"), [""])
sketch12.MapMode = "FlatFace"
sketch12.AttachmentOffset = App.Placement(V(0, 0, 0.125 * 25.4), App.Rotation())
sketch12.addGeometry(Part.Circle(V(34.4, 30.4, 0), V(0, 0, 1), 1.6), False)
sketch12.addGeometry(Part.Circle(V(64.8, 30.4, 0), V(0, 0, 1), 1.6), False)
sketch12.addGeometry(Part.Circle(V(64.8, 6.3, 0), V(0, 0, 1), 1.6), False)
sketch12.addGeometry(Part.Circle(V(34.4, 6.3, 0), V(0, 0, 1), 1.6), False)
sketch12.addGeometry(Part.Circle(V(68.6, 69.8, 0), V(0, 0, 1), 2), False)
sketch12.addGeometry(Part.Circle(V(39.6, 69.8, 0), V(0, 0, 1), 2), False)
sketch12.addGeometry(Part.Circle(V(39.6, 42.4, 0), V(0, 0, 1), 2), False)
sketch12.addGeometry(Part.Circle(V(68.6, 42.4, 0), V(0, 0, 1), 2), False)
sketch12.addConstraint(Sketcher.Constraint("Equal", 0, 1))
sketch12.addConstraint(Sketcher.Constraint("Equal", 1, 2))
sketch12.addConstraint(Sketcher.Constraint("Equal", 2, 3))
sketch12.addConstraint(Sketcher.Constraint("Equal", 4, 5))
sketch12.addConstraint(Sketcher.Constraint("Equal", 5, 6))
sketch12.addConstraint(Sketcher.Constraint("Equal", 6, 7))
sketch12.addConstraint(Sketcher.Constraint("Horizontal", 0, 3, 1, 3))
sketch12.addConstraint(Sketcher.Constraint("Horizontal", 2, 3, 3, 3))
sketch12.addConstraint(Sketcher.Constraint("Horizontal", 4, 3, 5, 3))
sketch12.addConstraint(Sketcher.Constraint("Horizontal", 6, 3, 7, 3))
sketch12.addConstraint(Sketcher.Constraint("Vertical", 1, 3, 2, 3))
sketch12.addConstraint(Sketcher.Constraint("Vertical", 0, 3, 3, 3))
sketch12.addConstraint(Sketcher.Constraint("Vertical", 5, 3, 6, 3))
sketch12.addConstraint(Sketcher.Constraint("Vertical", 4, 3, 7, 3))
sketch12.addConstraint(Sketcher.Constraint("DistanceX", -1, 1, 4, 3, Q("2.7 in")))
sketch12.addConstraint(Sketcher.Constraint("DistanceY", 2, 3, 4, 3, Q("2.5 in")))
sketch12.addConstraint(Sketcher.Constraint("Diameter", 0, 3.1))
sketch12.addConstraint(Sketcher.Constraint("Diameter", 4, 4.0))
sketch12.addConstraint(Sketcher.Constraint("DistanceX", -1, 1, 1, 3, Q("2.55 in")))
sketch12.addConstraint(Sketcher.Constraint("DistanceY", -1, 1, 2, 3, Q("0.25 in")))
sketch12.addConstraint(Sketcher.Constraint("DistanceX", -1, 1, 0, 3, 34.37))
sketch12.addConstraint(Sketcher.Constraint("DistanceY", -1, 1, 0, 3, 30.35))
sketch12.addConstraint(Sketcher.Constraint("DistanceX", -1, 1, 5, 3, 39.58))
sketch12.addConstraint(Sketcher.Constraint("DistanceY", -1, 1, 6, 3, 42.35))
pocket11 = body.newObject("PartDesign::Pocket", "Pocket010")
pocket11.Profile = sketch12
pocket11.Type = "ThroughAll"

sketch13 = body.newObject("Sketcher::SketchObject", "Sketch012")
sketch13.AttachmentSupport = (doc.getObject("XY_Plane"), [""])
sketch13.MapMode = "FlatFace"
sketch13.AttachmentOffset = App.Placement(V(0, 0, 0.125 * 25.4), App.Rotation())
sketch13.addGeometry(Part.Circle(V(-15.9, -65.6, 0), V(0, 0, 1), 1.6), False)
sketch13.addGeometry(Part.Circle(V(15.9, -65.6, 0), V(0, 0, 1), 1.6), False)
sketch13.addGeometry(Part.Circle(V(-15.9, -54.1, 0), V(0, 0, 1), 1.6), False)
sketch13.addGeometry(Part.Circle(V(15.9, -54.1, 0), V(0, 0, 1), 1.6), False)
sketch13.addConstraint(Sketcher.Constraint("Equal", 0, 1))
sketch13.addConstraint(Sketcher.Constraint("Equal", 1, 2))
sketch13.addConstraint(Sketcher.Constraint("Equal", 2, 3))
sketch13.addConstraint(Sketcher.Constraint("Symmetric", 0, 3, 1, 3, -2))
sketch13.addConstraint(Sketcher.Constraint("Symmetric", 2, 3, 3, 3, -2))
sketch13.addConstraint(Sketcher.Constraint("Vertical", 0, 3, 2, 3))
sketch13.addConstraint(Sketcher.Constraint("Diameter", 0, Q("0.125 in")))
sketch13.addConstraint(Sketcher.Constraint("DistanceX", 0, 3, 1, 3, Q("1.25 in")))
sketch13.addConstraint(Sketcher.Constraint("DistanceY", 0, 3, 2, 3, Q("0.45 in")))
sketch13.addConstraint(Sketcher.Constraint("DistanceY", 0, 3, -1, 1, 65.560311))
sketch13.setExpression("Constraints[6]", "Params.sketch13_diameter")
pocket12 = body.newObject("PartDesign::Pocket", "Pocket011")
pocket12.Profile = sketch13
pocket12.setExpression("Length", "Params.pocket12_length")

doc.recompute()
